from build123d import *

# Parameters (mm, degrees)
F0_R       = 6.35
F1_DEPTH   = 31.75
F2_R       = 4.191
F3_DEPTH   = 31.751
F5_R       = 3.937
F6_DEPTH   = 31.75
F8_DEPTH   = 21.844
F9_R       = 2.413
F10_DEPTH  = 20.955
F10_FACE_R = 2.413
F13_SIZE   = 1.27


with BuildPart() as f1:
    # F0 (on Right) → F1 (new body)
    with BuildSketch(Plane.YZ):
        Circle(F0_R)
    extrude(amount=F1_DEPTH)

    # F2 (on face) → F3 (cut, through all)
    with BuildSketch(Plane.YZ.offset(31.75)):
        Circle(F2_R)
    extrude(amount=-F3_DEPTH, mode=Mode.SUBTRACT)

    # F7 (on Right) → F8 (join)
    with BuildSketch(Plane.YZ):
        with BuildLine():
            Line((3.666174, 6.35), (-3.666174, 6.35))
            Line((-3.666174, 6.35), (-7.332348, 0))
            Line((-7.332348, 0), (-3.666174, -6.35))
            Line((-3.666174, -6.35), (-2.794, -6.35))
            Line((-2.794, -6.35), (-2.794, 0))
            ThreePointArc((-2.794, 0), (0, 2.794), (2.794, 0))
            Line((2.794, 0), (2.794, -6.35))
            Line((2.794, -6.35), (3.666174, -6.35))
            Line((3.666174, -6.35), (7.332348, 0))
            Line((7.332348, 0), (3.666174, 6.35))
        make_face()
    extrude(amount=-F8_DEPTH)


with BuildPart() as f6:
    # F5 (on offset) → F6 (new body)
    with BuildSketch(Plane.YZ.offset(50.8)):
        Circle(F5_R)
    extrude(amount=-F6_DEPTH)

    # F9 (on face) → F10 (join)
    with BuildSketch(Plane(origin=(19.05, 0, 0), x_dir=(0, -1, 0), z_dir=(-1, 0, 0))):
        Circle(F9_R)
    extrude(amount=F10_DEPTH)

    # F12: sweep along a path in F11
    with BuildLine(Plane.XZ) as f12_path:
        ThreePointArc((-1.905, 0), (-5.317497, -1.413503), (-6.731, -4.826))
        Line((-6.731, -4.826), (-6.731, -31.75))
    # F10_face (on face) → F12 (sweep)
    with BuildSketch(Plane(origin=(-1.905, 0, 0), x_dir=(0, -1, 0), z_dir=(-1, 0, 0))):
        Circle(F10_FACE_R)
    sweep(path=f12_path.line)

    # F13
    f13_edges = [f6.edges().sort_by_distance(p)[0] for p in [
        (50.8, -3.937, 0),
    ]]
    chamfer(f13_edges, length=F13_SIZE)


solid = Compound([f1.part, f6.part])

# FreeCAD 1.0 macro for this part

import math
import FreeCAD as App
import Part
import Sketcher

V = App.Vector
Q = App.Units.Quantity


def edges_at(feature, points):
    """Names of the edges that pass closest to the given points."""
    edges = feature.Shape.Edges
    near = lambda p: min(range(len(edges)), key=lambda i: edges[i].distToShape(Part.Vertex(*p))[0])
    return sorted({f"Edge{near(p) + 1}" for p in points})

doc = App.newDocument("Part")
params = doc.addObject("Spreadsheet::Sheet", "Params")
for row, (alias, value) in enumerate([
    ("sketch1_diameter", "0.5 in"),
    ("pad1_length", "1.25 in"),
    ("sketch2_diameter", "0.33 in"),
    ("sketch3_radius", "0.11 in"),
    ("sketch3_height", "0.25 in"),
    ("pad2_length", "0.86 in"),
    ("sketch4_diameter", "0.31 in"),
    ("pad3_length", "1.25 in"),
    ("sketch5_diameter", "0.19 in"),
    ("pad4_length", "0.825 in"),
    ("sketch6_diameter", "0.19 in"),
    ("sketch7_radius", "0.19 in"),
    ("sketch7_height", "1.06 in"),
    ("sketch7_width", "0.19 in"),
    ("chamfer_size", "0.05 in"),
], start=1):
    params.set(f"A{row}", alias)
    params.set(f"B{row}", "=" + value)
    params.setAlias(f"B{row}", alias)

body = doc.addObject("PartDesign::Body", "Body")

# Sketch on YZ plane
sketch1 = body.newObject("Sketcher::SketchObject", "Sketch")
sketch1.AttachmentSupport = (doc.getObject("YZ_Plane"), [""])
sketch1.MapMode = "FlatFace"
sketch1.addGeometry(Part.Circle(V(0, 0, 0), V(0, 0, 1), 6), False)
sketch1.addConstraint(Sketcher.Constraint("Coincident", 0, 3, -1, 1))
sketch1.addConstraint(Sketcher.Constraint("Diameter", 0, Q("0.5 in")))
sketch1.setExpression("Constraints[1]", "Params.sketch1_diameter")
pad1 = body.newObject("PartDesign::Pad", "Pad")
pad1.Profile = sketch1
pad1.setExpression("Length", "Params.pad1_length")

# Sketch on YZ plane
sketch2 = body.newObject("Sketcher::SketchObject", "Sketch001")
sketch2.AttachmentSupport = (doc.getObject("YZ_Plane"), [""])
sketch2.MapMode = "FlatFace"
sketch2.AttachmentOffset = App.Placement(V(0, 0, 1.25 * 25.4), App.Rotation())
sketch2.addGeometry(Part.Circle(V(0, 0, 0), V(0, 0, 1), 4.2), False)
sketch2.addConstraint(Sketcher.Constraint("Coincident", 0, 3, -1, 1))
sketch2.addConstraint(Sketcher.Constraint("Diameter", 0, Q("0.33 in")))
sketch2.setExpression("Constraints[1]", "Params.sketch2_diameter")
pocket1 = body.newObject("PartDesign::Pocket", "Pocket")
pocket1.Profile = sketch2
pocket1.Type = "ThroughAll"

# Sketch on YZ plane
sketch3 = body.newObject("Sketcher::SketchObject", "Sketch002")
sketch3.AttachmentSupport = (doc.getObject("YZ_Plane"), [""])
sketch3.MapMode = "FlatFace"
sketch3.addGeometry(Part.LineSegment(V(3.7, 6.3, 0), V(-3.7, 6.3, 0)), False)
sketch3.addGeometry(Part.LineSegment(V(-3.7, 6.3, 0), V(-7.3, 0, 0)), False)
sketch3.addGeometry(Part.LineSegment(V(-7.3, 0, 0), V(-3.7, -6.3, 0)), False)
sketch3.addGeometry(Part.LineSegment(V(-3.7, -6.3, 0), V(-2.8, -6.3, 0)), False)
sketch3.addGeometry(Part.LineSegment(V(-2.8, -6.3, 0), V(-2.8, 0, 0)), False)
sketch3.addGeometry(Part.ArcOfCircle(Part.Circle(V(0, 0, 0), V(0, 0, 1), 2.8), math.radians(0), math.radians(180)), False)
sketch3.addGeometry(Part.LineSegment(V(2.8, 0, 0), V(2.8, -6.3, 0)), False)
sketch3.addGeometry(Part.LineSegment(V(2.8, -6.3, 0), V(3.7, -6.3, 0)), False)
sketch3.addGeometry(Part.LineSegment(V(3.7, -6.3, 0), V(7.3, 0, 0)), False)
sketch3.addGeometry(Part.LineSegment(V(7.3, 0, 0), V(3.7, 6.3, 0)), False)
sketch3.addConstraint(Sketcher.Constraint("Coincident", 0, 2, 1, 1))
sketch3.addConstraint(Sketcher.Constraint("Coincident", 1, 2, 2, 1))
sketch3.addConstraint(Sketcher.Constraint("Coincident", 2, 2, 3, 1))
sketch3.addConstraint(Sketcher.Constraint("Coincident", 3, 2, 4, 1))
sketch3.addConstraint(Sketcher.Constraint("Tangent", 4, 2, 5, 2))
sketch3.addConstraint(Sketcher.Constraint("Tangent", 5, 1, 6, 1))
sketch3.addConstraint(Sketcher.Constraint("Coincident", 6, 2, 7, 1))
sketch3.addConstraint(Sketcher.Constraint("Coincident", 7, 2, 8, 1))
sketch3.addConstraint(Sketcher.Constraint("Coincident", 8, 2, 9, 1))
sketch3.addConstraint(Sketcher.Constraint("Coincident", 9, 2, 0, 1))
sketch3.addConstraint(Sketcher.Constraint("Horizontal", 0))
sketch3.addConstraint(Sketcher.Constraint("Horizontal", 3))
sketch3.addConstraint(Sketcher.Constraint("Vertical", 4))
sketch3.addConstraint(Sketcher.Constraint("Vertical", 6))
sketch3.addConstraint(Sketcher.Constraint("Horizontal", 7))
sketch3.addConstraint(Sketcher.Constraint("Coincident", 5, 3, -1, 1))
sketch3.addConstraint(Sketcher.Constraint("Symmetric", 0, 2, 7, 2, -1, 1))
sketch3.addConstraint(Sketcher.Constraint("Symmetric", 1, 2, 8, 2, -1, 1))
sketch3.addConstraint(Sketcher.Constraint("Symmetric", 2, 2, 9, 2, -1, 1))
sketch3.addConstraint(Sketcher.Constraint("PointOnObject", 1, 2, -1))
sketch3.addConstraint(Sketcher.Constraint("Vertical", 0, 2, 2, 2))
sketch3.addConstraint(Sketcher.Constraint("Radius", 5, Q("0.11 in")))
sketch3.addConstraint(Sketcher.Constraint("Angle", 1, Q("-119.999999 deg")))
sketch3.addConstraint(Sketcher.Constraint("DistanceY", 4, 1, 4, 2, Q("0.25 in")))
sketch3.addConstraint(Sketcher.Constraint("DistanceX", 0, 2, 0, 1, Q("7.332348 mm")))
sketch3.setExpression("Constraints[21]", "Params.sketch3_radius")
sketch3.setExpression("Constraints[23]", "Params.sketch3_height")
pad2 = body.newObject("PartDesign::Pad", "Pad001")
pad2.Profile = sketch3
pad2.setExpression("Length", "Params.pad2_length")
pad2.Reversed = True
body2 = doc.addObject("PartDesign::Body", "Body001")

# Sketch on YZ plane
sketch4 = body2.newObject("Sketcher::SketchObject", "Sketch003")
sketch4.AttachmentSupport = (doc.getObject("YZ_Plane001"), [""])
sketch4.MapMode = "FlatFace"
sketch4.AttachmentOffset = App.Placement(V(0, 0, 2 * 25.4), App.Rotation())
sketch4.addGeometry(Part.Circle(V(0, 0, 0), V(0, 0, 1), 3.9), False)
sketch4.addConstraint(Sketcher.Constraint("Coincident", 0, 3, -1, 1))
sketch4.addConstraint(Sketcher.Constraint("Diameter", 0, Q("0.31 in")))
sketch4.setExpression("Constraints[1]", "Params.sketch4_diameter")
pad3 = body2.newObject("PartDesign::Pad", "Pad002")
pad3.Profile = sketch4
pad3.setExpression("Length", "Params.pad3_length")
pad3.Reversed = True

# Sketch on YZ plane
sketch5 = body2.newObject("Sketcher::SketchObject", "Sketch004")
sketch5.AttachmentSupport = (doc.getObject("YZ_Plane001"), [""])
sketch5.MapMode = "FlatFace"
sketch5.AttachmentOffset = App.Placement(V(0, 0, 0.75 * 25.4), App.Rotation())
sketch5.addGeometry(Part.Circle(V(0, 0, 0), V(0, 0, 1), 2.4), False)
sketch5.addConstraint(Sketcher.Constraint("Coincident", 0, 3, -1, 1))
sketch5.addConstraint(Sketcher.Constraint("Diameter", 0, Q("0.19 in")))
sketch5.setExpression("Constraints[1]", "Params.sketch5_diameter")
pad4 = body2.newObject("PartDesign::Pad", "Pad003")
pad4.Profile = sketch5
pad4.setExpression("Length", "Params.pad4_length")
pad4.Reversed = True

# Sketch on YZ plane
sketch6 = body2.newObject("Sketcher::SketchObject", "Sketch005")
sketch6.AttachmentSupport = (doc.getObject("YZ_Plane001"), [""])
sketch6.MapMode = "FlatFace"
sketch6.AttachmentOffset = App.Placement(V(0, 0, -0.075 * 25.4), App.Rotation())
sketch6.addGeometry(Part.Circle(V(0, 0, 0), V(0, 0, 1), 2.4), False)
sketch6.addConstraint(Sketcher.Constraint("Coincident", 0, 3, -1, 1))
sketch6.addConstraint(Sketcher.Constraint("Diameter", 0, Q("0.19 in")))
sketch6.setExpression("Constraints[1]", "Params.sketch6_diameter")

# Sketch on XZ plane
sketch7 = body2.newObject("Sketcher::SketchObject", "Sketch006")
sketch7.AttachmentSupport = (doc.getObject("XZ_Plane001"), [""])
sketch7.MapMode = "FlatFace"
sketch7.addGeometry(Part.ArcOfCircle(Part.Circle(V(-1.9, -4.8, 0), V(0, 0, 1), 4.8), math.radians(90), math.radians(180)), False)
sketch7.addGeometry(Part.LineSegment(V(-6.7, -4.8, 0), V(-6.7, -31.8, 0)), False)
sketch7.addConstraint(Sketcher.Constraint("Tangent", 0, 2, 1, 1))
sketch7.addConstraint(Sketcher.Constraint("Vertical", 1))
sketch7.addConstraint(Sketcher.Constraint("PointOnObject", 0, 1, -1))
sketch7.addConstraint(Sketcher.Constraint("Radius", 0, Q("0.19 in")))
sketch7.addConstraint(Sketcher.Constraint("DistanceY", 1, 2, 1, 1, Q("1.06 in")))
sketch7.addConstraint(Sketcher.Constraint("DistanceX", 0, 2, 0, 1, Q("0.19 in")))
sketch7.addConstraint(Sketcher.Constraint("DistanceX", 0, 3, -1, 1, Q("0.075 in")))
sketch7.setExpression("Constraints[3]", "Params.sketch7_radius")
sketch7.setExpression("Constraints[4]", "Params.sketch7_height")
sketch7.setExpression("Constraints[5]", "Params.sketch7_width")
doc.recompute()

additivepipe = body2.newObject("PartDesign::AdditivePipe", "AdditivePipe")
additivepipe.Profile = sketch6
additivepipe.Spine = (sketch7, ["Edge1", "Edge2"])
doc.recompute()

chamfer = body2.newObject("PartDesign::Chamfer", "Chamfer")
chamfer.Base = (additivepipe, edges_at(additivepipe, [(50.8, -3.937, 0)]))
chamfer.setExpression("Size", "Params.chamfer_size")

doc.recompute()
